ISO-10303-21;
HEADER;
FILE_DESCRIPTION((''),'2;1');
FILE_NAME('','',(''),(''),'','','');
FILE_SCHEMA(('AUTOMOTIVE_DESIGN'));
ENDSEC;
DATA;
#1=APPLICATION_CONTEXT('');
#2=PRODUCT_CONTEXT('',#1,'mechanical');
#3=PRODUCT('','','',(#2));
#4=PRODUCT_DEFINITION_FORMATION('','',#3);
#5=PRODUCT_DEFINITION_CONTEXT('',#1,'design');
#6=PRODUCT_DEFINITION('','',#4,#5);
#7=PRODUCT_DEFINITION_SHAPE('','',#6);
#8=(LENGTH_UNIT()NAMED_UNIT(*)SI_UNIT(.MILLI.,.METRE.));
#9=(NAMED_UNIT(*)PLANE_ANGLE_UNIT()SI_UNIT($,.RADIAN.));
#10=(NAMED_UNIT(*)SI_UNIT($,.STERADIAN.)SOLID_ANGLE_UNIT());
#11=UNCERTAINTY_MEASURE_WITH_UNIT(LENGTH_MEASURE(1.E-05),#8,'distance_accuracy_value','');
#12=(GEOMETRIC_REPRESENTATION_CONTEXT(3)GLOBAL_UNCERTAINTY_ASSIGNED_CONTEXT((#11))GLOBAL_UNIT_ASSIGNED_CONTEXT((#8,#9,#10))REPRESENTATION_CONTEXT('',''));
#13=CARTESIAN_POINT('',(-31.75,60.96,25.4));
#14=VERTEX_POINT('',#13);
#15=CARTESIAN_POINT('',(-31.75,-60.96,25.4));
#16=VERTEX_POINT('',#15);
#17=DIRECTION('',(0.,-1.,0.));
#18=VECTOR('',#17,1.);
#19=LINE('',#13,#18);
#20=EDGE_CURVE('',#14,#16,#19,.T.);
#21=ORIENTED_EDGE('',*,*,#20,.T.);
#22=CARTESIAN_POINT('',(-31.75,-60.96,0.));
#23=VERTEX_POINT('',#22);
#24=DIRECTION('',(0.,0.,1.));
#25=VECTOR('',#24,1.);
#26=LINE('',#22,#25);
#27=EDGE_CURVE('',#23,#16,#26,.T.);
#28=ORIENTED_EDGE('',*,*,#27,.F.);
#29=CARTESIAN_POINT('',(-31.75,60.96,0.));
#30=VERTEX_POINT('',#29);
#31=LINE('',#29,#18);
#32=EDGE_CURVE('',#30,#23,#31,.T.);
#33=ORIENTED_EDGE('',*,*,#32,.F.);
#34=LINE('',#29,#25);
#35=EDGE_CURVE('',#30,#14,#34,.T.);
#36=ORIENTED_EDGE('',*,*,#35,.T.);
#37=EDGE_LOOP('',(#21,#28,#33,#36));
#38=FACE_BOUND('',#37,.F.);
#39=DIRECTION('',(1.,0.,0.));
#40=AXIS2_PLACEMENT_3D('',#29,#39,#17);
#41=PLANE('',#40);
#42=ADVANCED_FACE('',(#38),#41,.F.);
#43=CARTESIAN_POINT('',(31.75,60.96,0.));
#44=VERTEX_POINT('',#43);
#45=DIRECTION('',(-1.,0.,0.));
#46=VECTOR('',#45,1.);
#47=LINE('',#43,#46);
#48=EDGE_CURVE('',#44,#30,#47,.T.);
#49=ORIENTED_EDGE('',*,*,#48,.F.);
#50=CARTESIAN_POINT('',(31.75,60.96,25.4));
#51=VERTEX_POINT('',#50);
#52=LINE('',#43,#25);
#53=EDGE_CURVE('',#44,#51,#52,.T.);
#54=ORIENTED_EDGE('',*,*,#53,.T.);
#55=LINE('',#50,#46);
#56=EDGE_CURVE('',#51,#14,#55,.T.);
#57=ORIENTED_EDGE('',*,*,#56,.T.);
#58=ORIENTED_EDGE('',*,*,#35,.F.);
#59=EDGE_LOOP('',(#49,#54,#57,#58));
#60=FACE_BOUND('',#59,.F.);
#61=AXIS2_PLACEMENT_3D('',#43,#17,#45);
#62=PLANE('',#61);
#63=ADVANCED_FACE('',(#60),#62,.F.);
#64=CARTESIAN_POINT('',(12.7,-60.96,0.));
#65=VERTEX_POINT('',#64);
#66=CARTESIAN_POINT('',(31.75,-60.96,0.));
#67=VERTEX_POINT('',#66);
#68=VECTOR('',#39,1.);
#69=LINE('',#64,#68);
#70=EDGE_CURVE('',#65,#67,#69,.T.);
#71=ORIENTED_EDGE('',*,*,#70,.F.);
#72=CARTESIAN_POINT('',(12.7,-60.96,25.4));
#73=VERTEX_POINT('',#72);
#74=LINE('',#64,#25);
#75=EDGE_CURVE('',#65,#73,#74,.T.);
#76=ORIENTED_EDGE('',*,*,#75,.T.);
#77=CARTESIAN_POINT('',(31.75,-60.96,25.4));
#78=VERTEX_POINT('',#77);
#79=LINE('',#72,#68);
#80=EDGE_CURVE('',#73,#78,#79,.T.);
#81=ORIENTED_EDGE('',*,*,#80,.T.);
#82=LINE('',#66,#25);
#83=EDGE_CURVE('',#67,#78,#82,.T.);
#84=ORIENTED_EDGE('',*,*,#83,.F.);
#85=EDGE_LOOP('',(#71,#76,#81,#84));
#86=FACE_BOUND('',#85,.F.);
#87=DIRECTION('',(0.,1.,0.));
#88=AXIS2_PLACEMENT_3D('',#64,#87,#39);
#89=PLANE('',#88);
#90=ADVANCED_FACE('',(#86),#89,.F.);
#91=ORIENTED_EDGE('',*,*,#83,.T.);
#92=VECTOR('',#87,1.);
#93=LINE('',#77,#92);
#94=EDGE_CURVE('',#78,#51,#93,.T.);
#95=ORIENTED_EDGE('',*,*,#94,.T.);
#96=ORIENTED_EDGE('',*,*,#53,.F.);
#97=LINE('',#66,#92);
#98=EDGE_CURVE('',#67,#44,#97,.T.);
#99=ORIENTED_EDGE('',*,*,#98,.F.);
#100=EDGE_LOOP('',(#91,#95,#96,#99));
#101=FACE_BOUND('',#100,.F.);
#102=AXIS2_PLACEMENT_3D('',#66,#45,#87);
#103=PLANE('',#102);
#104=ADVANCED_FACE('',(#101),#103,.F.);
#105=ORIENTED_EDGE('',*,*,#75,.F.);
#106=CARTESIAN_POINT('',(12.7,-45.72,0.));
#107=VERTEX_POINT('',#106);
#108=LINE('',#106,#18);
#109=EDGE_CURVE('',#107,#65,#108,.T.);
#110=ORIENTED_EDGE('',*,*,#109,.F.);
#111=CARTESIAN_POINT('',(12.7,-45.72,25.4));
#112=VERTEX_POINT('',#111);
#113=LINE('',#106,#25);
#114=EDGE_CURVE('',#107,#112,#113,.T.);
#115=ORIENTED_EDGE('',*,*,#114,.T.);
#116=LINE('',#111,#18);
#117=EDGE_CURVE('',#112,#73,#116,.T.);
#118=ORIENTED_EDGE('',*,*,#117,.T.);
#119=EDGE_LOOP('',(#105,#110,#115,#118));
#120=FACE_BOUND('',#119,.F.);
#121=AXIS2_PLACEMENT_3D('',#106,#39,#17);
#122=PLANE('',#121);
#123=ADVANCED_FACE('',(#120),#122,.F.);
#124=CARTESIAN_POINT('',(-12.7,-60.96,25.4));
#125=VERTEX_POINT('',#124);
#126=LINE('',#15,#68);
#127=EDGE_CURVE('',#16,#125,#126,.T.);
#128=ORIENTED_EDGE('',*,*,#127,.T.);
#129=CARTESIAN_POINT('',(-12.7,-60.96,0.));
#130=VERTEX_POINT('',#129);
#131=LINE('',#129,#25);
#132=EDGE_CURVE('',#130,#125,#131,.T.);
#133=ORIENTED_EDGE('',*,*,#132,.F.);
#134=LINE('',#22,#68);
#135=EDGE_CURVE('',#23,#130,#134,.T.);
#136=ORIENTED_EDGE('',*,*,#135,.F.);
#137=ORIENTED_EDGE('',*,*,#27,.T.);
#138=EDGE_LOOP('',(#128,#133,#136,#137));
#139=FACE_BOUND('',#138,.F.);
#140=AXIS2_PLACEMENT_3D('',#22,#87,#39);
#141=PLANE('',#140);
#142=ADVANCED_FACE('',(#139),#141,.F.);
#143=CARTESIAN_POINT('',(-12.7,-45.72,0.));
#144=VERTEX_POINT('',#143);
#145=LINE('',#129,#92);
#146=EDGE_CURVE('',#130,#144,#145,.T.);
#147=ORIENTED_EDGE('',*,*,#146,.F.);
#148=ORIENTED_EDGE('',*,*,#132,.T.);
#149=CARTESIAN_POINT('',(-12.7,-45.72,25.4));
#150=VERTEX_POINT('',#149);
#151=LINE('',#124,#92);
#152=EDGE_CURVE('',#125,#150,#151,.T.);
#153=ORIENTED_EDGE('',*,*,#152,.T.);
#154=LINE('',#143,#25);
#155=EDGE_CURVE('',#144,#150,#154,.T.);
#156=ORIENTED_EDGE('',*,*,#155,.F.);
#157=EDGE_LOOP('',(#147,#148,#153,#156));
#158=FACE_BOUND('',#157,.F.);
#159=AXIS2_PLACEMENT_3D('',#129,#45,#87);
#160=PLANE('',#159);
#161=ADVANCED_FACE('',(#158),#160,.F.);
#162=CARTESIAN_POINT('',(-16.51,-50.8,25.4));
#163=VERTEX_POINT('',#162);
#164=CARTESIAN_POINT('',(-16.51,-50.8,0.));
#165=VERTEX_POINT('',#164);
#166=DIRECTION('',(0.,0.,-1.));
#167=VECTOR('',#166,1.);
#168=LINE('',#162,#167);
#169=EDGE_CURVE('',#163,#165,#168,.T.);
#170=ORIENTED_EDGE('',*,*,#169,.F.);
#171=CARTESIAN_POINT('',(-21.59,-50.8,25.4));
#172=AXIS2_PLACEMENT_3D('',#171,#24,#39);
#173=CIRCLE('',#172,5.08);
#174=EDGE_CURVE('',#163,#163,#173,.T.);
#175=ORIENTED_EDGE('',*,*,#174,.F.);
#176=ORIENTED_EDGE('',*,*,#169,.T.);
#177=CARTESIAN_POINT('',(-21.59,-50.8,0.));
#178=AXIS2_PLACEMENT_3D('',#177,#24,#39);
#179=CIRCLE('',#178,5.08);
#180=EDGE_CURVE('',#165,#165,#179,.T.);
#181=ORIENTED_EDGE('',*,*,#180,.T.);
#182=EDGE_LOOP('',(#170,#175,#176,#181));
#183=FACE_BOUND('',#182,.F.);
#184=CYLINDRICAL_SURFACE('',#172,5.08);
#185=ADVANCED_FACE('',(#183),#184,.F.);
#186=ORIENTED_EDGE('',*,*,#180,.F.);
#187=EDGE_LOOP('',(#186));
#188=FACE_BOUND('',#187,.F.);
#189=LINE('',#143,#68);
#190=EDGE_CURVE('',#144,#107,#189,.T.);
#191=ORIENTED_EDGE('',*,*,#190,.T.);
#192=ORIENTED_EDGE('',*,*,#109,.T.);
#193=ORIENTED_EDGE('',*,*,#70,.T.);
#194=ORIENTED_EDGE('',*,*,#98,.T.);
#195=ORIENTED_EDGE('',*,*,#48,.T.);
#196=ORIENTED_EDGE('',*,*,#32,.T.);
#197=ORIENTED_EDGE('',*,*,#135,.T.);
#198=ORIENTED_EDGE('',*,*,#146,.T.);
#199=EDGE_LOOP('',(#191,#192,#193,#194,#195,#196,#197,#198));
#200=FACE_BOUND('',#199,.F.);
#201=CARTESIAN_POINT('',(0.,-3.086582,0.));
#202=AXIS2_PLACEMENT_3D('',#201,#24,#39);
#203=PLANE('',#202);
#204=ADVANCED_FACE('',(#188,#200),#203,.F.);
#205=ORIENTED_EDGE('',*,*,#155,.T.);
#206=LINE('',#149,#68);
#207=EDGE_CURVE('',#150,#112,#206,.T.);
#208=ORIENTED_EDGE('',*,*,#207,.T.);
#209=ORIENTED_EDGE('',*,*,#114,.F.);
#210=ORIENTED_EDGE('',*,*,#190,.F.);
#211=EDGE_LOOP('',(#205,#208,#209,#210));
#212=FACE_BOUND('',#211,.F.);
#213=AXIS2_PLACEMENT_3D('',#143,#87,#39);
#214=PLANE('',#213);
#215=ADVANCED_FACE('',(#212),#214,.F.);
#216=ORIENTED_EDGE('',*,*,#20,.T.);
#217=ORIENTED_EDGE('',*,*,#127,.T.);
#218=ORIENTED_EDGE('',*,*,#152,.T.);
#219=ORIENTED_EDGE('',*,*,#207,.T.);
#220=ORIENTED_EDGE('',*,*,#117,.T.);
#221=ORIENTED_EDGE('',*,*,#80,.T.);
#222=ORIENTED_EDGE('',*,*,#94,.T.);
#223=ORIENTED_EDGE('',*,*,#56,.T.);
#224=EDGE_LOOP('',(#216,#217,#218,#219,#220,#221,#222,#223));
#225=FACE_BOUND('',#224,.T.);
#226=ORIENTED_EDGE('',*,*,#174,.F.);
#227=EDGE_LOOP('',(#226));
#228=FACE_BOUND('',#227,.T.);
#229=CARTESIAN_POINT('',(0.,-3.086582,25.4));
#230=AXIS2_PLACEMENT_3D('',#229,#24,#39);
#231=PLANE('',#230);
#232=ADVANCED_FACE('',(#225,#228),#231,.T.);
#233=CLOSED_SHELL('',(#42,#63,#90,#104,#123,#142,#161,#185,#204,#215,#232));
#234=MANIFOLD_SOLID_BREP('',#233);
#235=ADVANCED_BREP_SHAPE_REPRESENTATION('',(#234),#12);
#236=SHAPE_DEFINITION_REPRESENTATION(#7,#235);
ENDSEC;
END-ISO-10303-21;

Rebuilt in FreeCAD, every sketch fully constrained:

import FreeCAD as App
import Part
import Sketcher

V = App.Vector
Q = App.Units.Quantity

doc = App.newDocument("Part")
params = doc.addObject("Spreadsheet::Sheet", "Params")
for row, (alias, value) in enumerate([
    ("sketch1_width", "1 in"),
    ("sketch1_width2", "2.5 in"),
    ("sketch1_height", "4.8 in"),
    ("sketch1_height2", "0.6 in"),
    ("pad1_length", "1 in"),
    ("sketch2_diameter", "0.4 in"),
    ("pocket1_length", "1 in"),
], start=1):
    params.set(f"A{row}", alias)
    params.set(f"B{row}", "=" + value)
    params.setAlias(f"B{row}", alias)

body = doc.addObject("PartDesign::Body", "Body")

# Sketch on XY plane
sketch1 = doc.addObject("Sketcher::SketchObject", "Sketch")
body.addObject(sketch1)
sketch1.AttachmentSupport = (doc.XY_Plane, [""])
sketch1.MapMode = "FlatFace"
sketch1.addGeometry(Part.LineSegment(V(31.75, -60.96, 0), V(31.75, 60.96, 0)), False)
sketch1.addGeometry(Part.LineSegment(V(31.75, 60.96, 0), V(-31.75, 60.96, 0)), False)
sketch1.addGeometry(Part.LineSegment(V(-31.75, 60.96, 0), V(-31.75, -60.96, 0)), False)
sketch1.addGeometry(Part.LineSegment(V(-31.75, -60.96, 0), V(-12.7, -60.96, 0)), False)
sketch1.addGeometry(Part.LineSegment(V(-12.7, -60.96, 0), V(-12.7, -45.72, 0)), False)
sketch1.addGeometry(Part.LineSegment(V(-12.7, -45.72, 0), V(12.7, -45.72, 0)), False)
sketch1.addGeometry(Part.LineSegment(V(12.7, -45.72, 0), V(12.7, -60.96, 0)), False)
sketch1.addGeometry(Part.LineSegment(V(12.7, -60.96, 0), V(31.75, -60.96, 0)), False)
sketch1.addConstraint(Sketcher.Constraint("Coincident", 0, 2, 1, 1))
sketch1.addConstraint(Sketcher.Constraint("Coincident", 1, 2, 2, 1))
sketch1.addConstraint(Sketcher.Constraint("Coincident", 2, 2, 3, 1))
sketch1.addConstraint(Sketcher.Constraint("Coincident", 3, 2, 4, 1))
sketch1.addConstraint(Sketcher.Constraint("Coincident", 4, 2, 5, 1))
sketch1.addConstraint(Sketcher.Constraint("Coincident", 5, 2, 6, 1))
sketch1.addConstraint(Sketcher.Constraint("Coincident", 6, 2, 7, 1))
sketch1.addConstraint(Sketcher.Constraint("Coincident", 7, 2, 0, 1))
sketch1.addConstraint(Sketcher.Constraint("Vertical", 0))
sketch1.addConstraint(Sketcher.Constraint("Horizontal", 1))
sketch1.addConstraint(Sketcher.Constraint("Vertical", 2))
sketch1.addConstraint(Sketcher.Constraint("Horizontal", 3))
sketch1.addConstraint(Sketcher.Constraint("Vertical", 4))
sketch1.addConstraint(Sketcher.Constraint("Horizontal", 5))
sketch1.addConstraint(Sketcher.Constraint("Vertical", 6))
sketch1.addConstraint(Sketcher.Constraint("Horizontal", 7))
sketch1.addConstraint(Sketcher.Constraint("Symmetric", 0, 2, 2, 2, -1, 1))
sketch1.addConstraint(Sketcher.Constraint("Symmetric", 3, 2, 6, 2, -2))
sketch1.addConstraint(Sketcher.Constraint("DistanceX", 5, 1, 5, 2, Q("1 in")))
sketch1.addConstraint(Sketcher.Constraint("DistanceX", 1, 2, 1, 1, Q("2.5 in")))
sketch1.addConstraint(Sketcher.Constraint("DistanceY", 0, 1, 0, 2, Q("4.8 in")))
sketch1.addConstraint(Sketcher.Constraint("DistanceY", 4, 1, 4, 2, Q("0.6 in")))
sketch1.setExpression("Constraints[18]", "Params.sketch1_width")
sketch1.setExpression("Constraints[19]", "Params.sketch1_width2")
sketch1.setExpression("Constraints[20]", "Params.sketch1_height")
sketch1.setExpression("Constraints[21]", "Params.sketch1_height2")
pad1 = doc.addObject("PartDesign::Pad", "Pad")
body.addObject(pad1)
pad1.Profile = sketch1
pad1.setExpression("Length", "Params.pad1_length")

# Sketch on XY plane
sketch2 = doc.addObject("Sketcher::SketchObject", "Sketch001")
body.addObject(sketch2)
sketch2.AttachmentSupport = (doc.XY_Plane, [""])
sketch2.MapMode = "FlatFace"
sketch2.AttachmentOffset = App.Placement(V(0, 0, 1 * 25.4), App.Rotation())
sketch2.addGeometry(Part.Circle(V(-21.59, -50.8, 0), V(0, 0, 1), 5.08), False)
sketch2.addConstraint(Sketcher.Constraint("Diameter", 0, Q("0.4 in")))
sketch2.addConstraint(Sketcher.Constraint("DistanceY", 0, 3, -1, 1, Q("2 in")))
sketch2.addConstraint(Sketcher.Constraint("DistanceX", 0, 3, -1, 1, Q("0.85 in")))
sketch2.setExpression("Constraints[0]", "Params.sketch2_diameter")
pocket1 = doc.addObject("PartDesign::Pocket", "Pocket")
body.addObject(pocket1)
pocket1.Profile = sketch2
pocket1.setExpression("Length", "Params.pocket1_length")

doc.recompute()
